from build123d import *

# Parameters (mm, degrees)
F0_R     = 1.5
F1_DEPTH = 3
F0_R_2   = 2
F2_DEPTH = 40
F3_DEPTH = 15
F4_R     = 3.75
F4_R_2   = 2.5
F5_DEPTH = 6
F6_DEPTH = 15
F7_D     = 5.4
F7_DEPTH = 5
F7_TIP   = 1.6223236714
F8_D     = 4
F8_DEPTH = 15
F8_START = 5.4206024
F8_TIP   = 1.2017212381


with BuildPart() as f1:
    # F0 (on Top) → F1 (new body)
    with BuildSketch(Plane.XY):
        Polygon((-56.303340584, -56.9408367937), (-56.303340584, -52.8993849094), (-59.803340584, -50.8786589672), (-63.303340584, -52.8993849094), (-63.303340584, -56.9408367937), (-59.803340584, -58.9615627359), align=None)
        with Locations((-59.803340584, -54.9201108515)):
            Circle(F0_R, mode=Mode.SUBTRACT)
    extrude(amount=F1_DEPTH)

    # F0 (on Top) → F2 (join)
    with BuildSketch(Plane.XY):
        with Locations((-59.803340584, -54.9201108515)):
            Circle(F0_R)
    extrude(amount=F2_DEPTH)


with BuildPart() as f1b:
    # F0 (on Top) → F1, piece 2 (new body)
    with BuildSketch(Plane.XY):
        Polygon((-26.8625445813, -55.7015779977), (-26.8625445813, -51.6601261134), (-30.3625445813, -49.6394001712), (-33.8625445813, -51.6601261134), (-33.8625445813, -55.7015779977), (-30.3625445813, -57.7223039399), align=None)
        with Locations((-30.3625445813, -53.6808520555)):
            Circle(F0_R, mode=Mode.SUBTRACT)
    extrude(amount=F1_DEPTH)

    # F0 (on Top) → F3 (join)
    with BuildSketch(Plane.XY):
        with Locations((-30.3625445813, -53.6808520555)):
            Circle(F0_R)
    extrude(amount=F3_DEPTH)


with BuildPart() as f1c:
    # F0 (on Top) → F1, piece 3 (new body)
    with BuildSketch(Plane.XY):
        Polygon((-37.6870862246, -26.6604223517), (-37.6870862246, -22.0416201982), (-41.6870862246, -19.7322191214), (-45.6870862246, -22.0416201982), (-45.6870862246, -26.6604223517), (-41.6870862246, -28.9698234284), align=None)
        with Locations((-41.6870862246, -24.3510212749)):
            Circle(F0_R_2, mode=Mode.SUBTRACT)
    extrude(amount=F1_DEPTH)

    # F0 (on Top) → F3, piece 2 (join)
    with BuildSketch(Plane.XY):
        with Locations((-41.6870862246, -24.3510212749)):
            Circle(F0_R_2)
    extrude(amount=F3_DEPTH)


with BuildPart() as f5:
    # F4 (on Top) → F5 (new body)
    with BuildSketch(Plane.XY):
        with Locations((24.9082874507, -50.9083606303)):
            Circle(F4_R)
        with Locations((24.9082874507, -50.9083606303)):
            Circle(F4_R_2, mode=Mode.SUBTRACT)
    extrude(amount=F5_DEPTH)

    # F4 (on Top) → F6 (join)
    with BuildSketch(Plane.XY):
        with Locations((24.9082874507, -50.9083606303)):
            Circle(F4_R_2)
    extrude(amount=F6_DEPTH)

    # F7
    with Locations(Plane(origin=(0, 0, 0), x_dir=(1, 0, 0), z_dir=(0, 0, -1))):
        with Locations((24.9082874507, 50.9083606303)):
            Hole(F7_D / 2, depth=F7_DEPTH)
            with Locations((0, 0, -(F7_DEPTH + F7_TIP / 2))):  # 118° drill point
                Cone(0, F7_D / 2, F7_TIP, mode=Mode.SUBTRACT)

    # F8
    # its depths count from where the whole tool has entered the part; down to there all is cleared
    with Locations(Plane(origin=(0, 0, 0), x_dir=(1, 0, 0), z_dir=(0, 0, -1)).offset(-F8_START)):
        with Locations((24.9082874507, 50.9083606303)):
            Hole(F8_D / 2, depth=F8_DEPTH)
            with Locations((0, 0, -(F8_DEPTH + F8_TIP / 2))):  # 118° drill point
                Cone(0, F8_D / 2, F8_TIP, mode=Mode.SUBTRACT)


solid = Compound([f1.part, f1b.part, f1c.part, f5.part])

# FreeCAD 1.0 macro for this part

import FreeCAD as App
import Part
import Sketcher

V = App.Vector
Q = App.Units.Quantity

doc = App.newDocument("Part")
body = doc.addObject("PartDesign::Body", "Body")

# Sketch on XY plane
sketch1 = body.newObject("Sketcher::SketchObject", "Sketch")
sketch1.AttachmentSupport = (doc.getObject("XY_Plane"), [""])
sketch1.MapMode = "FlatFace"
sketch1.addGeometry([
    Part.LineSegment(V(-56.3, -56.9, 0), V(-56.3, -52.9, 0)),  # 0
    Part.LineSegment(V(-56.3, -52.9, 0), V(-59.8, -50.9, 0)),  # 1
    Part.LineSegment(V(-59.8, -50.9, 0), V(-63.3, -52.9, 0)),  # 2
    Part.LineSegment(V(-63.3, -52.9, 0), V(-63.3, -56.9, 0)),  # 3
    Part.LineSegment(V(-63.3, -56.9, 0), V(-59.8, -59, 0)),  # 4
    Part.LineSegment(V(-59.8, -59, 0), V(-56.3, -56.9, 0)),  # 5
    Part.Circle(V(-59.8, -54.9, 0), V(0, 0, 1), 1.5),  # 6
], False)
sketch1.addConstraint([
    Sketcher.Constraint("Coincident", 0, 2, 1, 1),
    Sketcher.Constraint("Coincident", 1, 2, 2, 1),
    Sketcher.Constraint("Coincident", 2, 2, 3, 1),
    Sketcher.Constraint("Coincident", 3, 2, 4, 1),
    Sketcher.Constraint("Coincident", 4, 2, 5, 1),
    Sketcher.Constraint("Coincident", 5, 2, 0, 1),
    Sketcher.Constraint("Vertical", 0),
    Sketcher.Constraint("Vertical", 3),
    Sketcher.Constraint("Parallel", 1, 4),
    Sketcher.Constraint("Parallel", 2, 5),
    Sketcher.Constraint("Horizontal", 0, 2, 2, 2),
    Sketcher.Constraint("Horizontal", 3, 2, 5, 2),
    Sketcher.Constraint("Vertical", 6, 3, 1, 2),
    Sketcher.Constraint("Vertical", 1, 2, 4, 2),
    Sketcher.Constraint("Diameter", 6, 3.0),
    Sketcher.Constraint("Angle", 1, Q("150 deg")),
    Sketcher.Constraint("DistanceX", 2, 2, 0, 2, 7.0),
    Sketcher.Constraint("DistanceY", 0, 1, 0, 2, 4.041452),
    Sketcher.Constraint("DistanceX", 6, 3, -1, 1, 59.803341),
    Sketcher.Constraint("DistanceY", 6, 3, -1, 1, 54.920111),
    Sketcher.Constraint("DistanceY", 1, 2, -1, 1, 50.878659),
])
pad1 = body.newObject("PartDesign::Pad", "Pad")
pad1.Profile = sketch1
pad1.Length = 3

# Sketch on XY plane
sketch2 = body.newObject("Sketcher::SketchObject", "Sketch001")
sketch2.AttachmentSupport = (doc.getObject("XY_Plane"), [""])
sketch2.MapMode = "FlatFace"
sketch2.addGeometry(Part.Circle(V(-59.8, -54.9, 0), V(0, 0, 1), 1.5), False)
sketch2.addConstraint([
    Sketcher.Constraint("Diameter", 0, 3.0),
    Sketcher.Constraint("DistanceX", 0, 3, -1, 1, 59.803341),
    Sketcher.Constraint("DistanceY", 0, 3, -1, 1, 54.920111),
])
pad2 = body.newObject("PartDesign::Pad", "Pad001")
pad2.Profile = sketch2
pad2.Length = 40
body2 = doc.addObject("PartDesign::Body", "Body001")

# Sketch on XY plane
sketch3 = body2.newObject("Sketcher::SketchObject", "Sketch002")
sketch3.AttachmentSupport = (doc.getObject("XY_Plane001"), [""])
sketch3.MapMode = "FlatFace"
sketch3.addGeometry([
    Part.LineSegment(V(-26.9, -55.7, 0), V(-26.9, -51.7, 0)),  # 0
    Part.LineSegment(V(-26.9, -51.7, 0), V(-30.4, -49.6, 0)),  # 1
    Part.LineSegment(V(-30.4, -49.6, 0), V(-33.9, -51.7, 0)),  # 2
    Part.LineSegment(V(-33.9, -51.7, 0), V(-33.9, -55.7, 0)),  # 3
    Part.LineSegment(V(-33.9, -55.7, 0), V(-30.4, -57.7, 0)),  # 4
    Part.LineSegment(V(-30.4, -57.7, 0), V(-26.9, -55.7, 0)),  # 5
    Part.Circle(V(-30.4, -53.7, 0), V(0, 0, 1), 1.5),  # 6
], False)
sketch3.addConstraint([
    Sketcher.Constraint("Coincident", 0, 2, 1, 1),
    Sketcher.Constraint("Coincident", 1, 2, 2, 1),
    Sketcher.Constraint("Coincident", 2, 2, 3, 1),
    Sketcher.Constraint("Coincident", 3, 2, 4, 1),
    Sketcher.Constraint("Coincident", 4, 2, 5, 1),
    Sketcher.Constraint("Coincident", 5, 2, 0, 1),
    Sketcher.Constraint("Vertical", 0),
    Sketcher.Constraint("Vertical", 3),
    Sketcher.Constraint("Parallel", 1, 4),
    Sketcher.Constraint("Parallel", 2, 5),
    Sketcher.Constraint("Horizontal", 0, 2, 2, 2),
    Sketcher.Constraint("Horizontal", 3, 2, 5, 2),
    Sketcher.Constraint("Vertical", 6, 3, 1, 2),
    Sketcher.Constraint("Vertical", 1, 2, 4, 2),
    Sketcher.Constraint("Diameter", 6, 3.0),
    Sketcher.Constraint("Angle", 1, Q("150 deg")),
    Sketcher.Constraint("DistanceX", 2, 2, 0, 2, 7.0),
    Sketcher.Constraint("DistanceY", 0, 1, 0, 2, 4.041452),
    Sketcher.Constraint("DistanceY", 1, 2, -1, 1, 49.6394),
    Sketcher.Constraint("DistanceY", 6, 3, 1, 2, 4.041452),
    Sketcher.Constraint("DistanceX", 6, 3, -1, 1, 30.362545),
])
pad3 = body2.newObject("PartDesign::Pad", "Pad002")
pad3.Profile = sketch3
pad3.Length = 3

# Sketch on XY plane
sketch4 = body2.newObject("Sketcher::SketchObject", "Sketch003")
sketch4.AttachmentSupport = (doc.getObject("XY_Plane001"), [""])
sketch4.MapMode = "FlatFace"
sketch4.addGeometry(Part.Circle(V(-30.4, -53.7, 0), V(0, 0, 1), 1.5), False)
sketch4.addConstraint([
    Sketcher.Constraint("Diameter", 0, 3.0),
    Sketcher.Constraint("DistanceX", 0, 3, -1, 1, 30.362545),
    Sketcher.Constraint("DistanceY", 0, 3, -1, 1, 53.680852),
])
pad4 = body2.newObject("PartDesign::Pad", "Pad003")
pad4.Profile = sketch4
pad4.Length = 15
body3 = doc.addObject("PartDesign::Body", "Body002")

# Sketch on XY plane
sketch5 = body3.newObject("Sketcher::SketchObject", "Sketch004")
sketch5.AttachmentSupport = (doc.getObject("XY_Plane002"), [""])
sketch5.MapMode = "FlatFace"
sketch5.addGeometry([
    Part.LineSegment(V(-37.7, -26.7, 0), V(-37.7, -22, 0)),  # 0
    Part.LineSegment(V(-37.7, -22, 0), V(-41.7, -19.7, 0)),  # 1
    Part.LineSegment(V(-41.7, -19.7, 0), V(-45.7, -22, 0)),  # 2
    Part.LineSegment(V(-45.7, -22, 0), V(-45.7, -26.7, 0)),  # 3
    Part.LineSegment(V(-45.7, -26.7, 0), V(-41.7, -29, 0)),  # 4
    Part.LineSegment(V(-41.7, -29, 0), V(-37.7, -26.7, 0)),  # 5
    Part.Circle(V(-41.7, -24.4, 0), V(0, 0, 1), 2),  # 6
], False)
sketch5.addConstraint([
    Sketcher.Constraint("Coincident", 0, 2, 1, 1),
    Sketcher.Constraint("Coincident", 1, 2, 2, 1),
    Sketcher.Constraint("Coincident", 2, 2, 3, 1),
    Sketcher.Constraint("Coincident", 3, 2, 4, 1),
    Sketcher.Constraint("Coincident", 4, 2, 5, 1),
    Sketcher.Constraint("Coincident", 5, 2, 0, 1),
    Sketcher.Constraint("Vertical", 0),
    Sketcher.Constraint("Vertical", 3),
    Sketcher.Constraint("Parallel", 1, 4),
    Sketcher.Constraint("Parallel", 2, 5),
    Sketcher.Constraint("Horizontal", 0, 2, 2, 2),
    Sketcher.Constraint("Horizontal", 3, 2, 5, 2),
    Sketcher.Constraint("Vertical", 6, 3, 1, 2),
    Sketcher.Constraint("Vertical", 1, 2, 4, 2),
    Sketcher.Constraint("Diameter", 6, 4.0),
    Sketcher.Constraint("Angle", 1, Q("150 deg")),
    Sketcher.Constraint("DistanceX", 6, 3, 0, 2, 4.0),
    Sketcher.Constraint("DistanceY", 6, 3, 0, 2, 2.309401),
    Sketcher.Constraint("DistanceY", 3, 2, 6, 3, 2.309401),
    Sketcher.Constraint("DistanceY", 6, 3, -1, 1, 24.351021),
    Sketcher.Constraint("DistanceX", 6, 3, -1, 1, 41.687086),
])
pad5 = body3.newObject("PartDesign::Pad", "Pad004")
pad5.Profile = sketch5
pad5.Length = 3

# Sketch on XY plane
sketch6 = body3.newObject("Sketcher::SketchObject", "Sketch005")
sketch6.AttachmentSupport = (doc.getObject("XY_Plane002"), [""])
sketch6.MapMode = "FlatFace"
sketch6.addGeometry(Part.Circle(V(-41.7, -24.4, 0), V(0, 0, 1), 2), False)
sketch6.addConstraint([
    Sketcher.Constraint("Diameter", 0, 4.0),
    Sketcher.Constraint("DistanceY", 0, 3, -1, 1, 24.351021),
    Sketcher.Constraint("DistanceX", 0, 3, -1, 1, 41.687086),
])
pad6 = body3.newObject("PartDesign::Pad", "Pad005")
pad6.Profile = sketch6
pad6.Length = 15
body4 = doc.addObject("PartDesign::Body", "Body003")

# Sketch on XY plane
sketch7 = body4.newObject("Sketcher::SketchObject", "Sketch006")
sketch7.AttachmentSupport = (doc.getObject("XY_Plane003"), [""])
sketch7.MapMode = "FlatFace"
sketch7.addGeometry([
    Part.Circle(V(24.9, -50.9, 0), V(0, 0, 1), 3.8),
    Part.Circle(V(24.9, -50.9, 0), V(0, 0, 1), 2.5),
], False)
sketch7.addConstraint([
    Sketcher.Constraint("Coincident", 1, 3, 0, 3),
    Sketcher.Constraint("Diameter", 1, 5.0),
    Sketcher.Constraint("Diameter", 0, 7.5),
    Sketcher.Constraint("DistanceY", 0, 3, -1, 1, 50.908361),
    Sketcher.Constraint("DistanceX", -1, 1, 0, 3, 24.908287),
])
pad7 = body4.newObject("PartDesign::Pad", "Pad006")
pad7.Profile = sketch7
pad7.Length = 6

# Sketch on XY plane
sketch8 = body4.newObject("Sketcher::SketchObject", "Sketch007")
sketch8.AttachmentSupport = (doc.getObject("XY_Plane003"), [""])
sketch8.MapMode = "FlatFace"
sketch8.addGeometry(Part.Circle(V(24.9, -50.9, 0), V(0, 0, 1), 2.5), False)
sketch8.addConstraint([
    Sketcher.Constraint("Diameter", 0, 5.0),
    Sketcher.Constraint("DistanceY", 0, 3, -1, 1, 50.908361),
    Sketcher.Constraint("DistanceX", -1, 1, 0, 3, 24.908287),
])
pad8 = body4.newObject("PartDesign::Pad", "Pad007")
pad8.Profile = sketch8
pad8.Length = 15

# Sketch on XY plane
sketch9 = body4.newObject("Sketcher::SketchObject", "Sketch008")
sketch9.AttachmentSupport = (doc.getObject("XY_Plane003"), [""])
sketch9.MapMode = "FlatFace"
sketch9.addGeometry(Part.Circle(V(24.9, -50.9, 0), V(0, 0, 1), 2.7), False)
sketch9.addConstraint([
    Sketcher.Constraint("Diameter", 0, 5.4),
    Sketcher.Constraint("DistanceY", 0, 3, -1, 1, 50.908361),
    Sketcher.Constraint("DistanceX", -1, 1, 0, 3, 24.908287),
])
doc.recompute()
hole = body4.newObject("PartDesign::Hole", "Hole")
hole.Profile = sketch9
hole.ThreadType = "None"
hole.Diameter = 5.4
hole.DepthType = "Dimension"
hole.Depth = 5
hole.DrillPoint = "Angled"
hole.DrillPointAngle = 118
hole.Reversed = True

# Sketch on XY plane
sketch10 = body4.newObject("Sketcher::SketchObject", "Sketch009")
sketch10.AttachmentSupport = (doc.getObject("XY_Plane003"), [""])
sketch10.MapMode = "FlatFace"
sketch10.AttachmentOffset = App.Placement(V(0, 0, 5.420602), App.Rotation())
sketch10.addGeometry(Part.Circle(V(24.9, -50.9, 0), V(0, 0, 1), 2), False)
sketch10.addConstraint([
    Sketcher.Constraint("Diameter", 0, 4.0),
    Sketcher.Constraint("DistanceY", 0, 3, -1, 1, 50.908361),
    Sketcher.Constraint("DistanceX", -1, 1, 0, 3, 24.908287),
])
doc.recompute()
hole2 = body4.newObject("PartDesign::Hole", "Hole001")
hole2.Profile = sketch10
hole2.ThreadType = "None"
hole2.Diameter = 4
hole2.DepthType = "Dimension"
hole2.Depth = 15
hole2.DrillPoint = "Angled"
hole2.DrillPointAngle = 118
hole2.Reversed = True

doc.recompute()
